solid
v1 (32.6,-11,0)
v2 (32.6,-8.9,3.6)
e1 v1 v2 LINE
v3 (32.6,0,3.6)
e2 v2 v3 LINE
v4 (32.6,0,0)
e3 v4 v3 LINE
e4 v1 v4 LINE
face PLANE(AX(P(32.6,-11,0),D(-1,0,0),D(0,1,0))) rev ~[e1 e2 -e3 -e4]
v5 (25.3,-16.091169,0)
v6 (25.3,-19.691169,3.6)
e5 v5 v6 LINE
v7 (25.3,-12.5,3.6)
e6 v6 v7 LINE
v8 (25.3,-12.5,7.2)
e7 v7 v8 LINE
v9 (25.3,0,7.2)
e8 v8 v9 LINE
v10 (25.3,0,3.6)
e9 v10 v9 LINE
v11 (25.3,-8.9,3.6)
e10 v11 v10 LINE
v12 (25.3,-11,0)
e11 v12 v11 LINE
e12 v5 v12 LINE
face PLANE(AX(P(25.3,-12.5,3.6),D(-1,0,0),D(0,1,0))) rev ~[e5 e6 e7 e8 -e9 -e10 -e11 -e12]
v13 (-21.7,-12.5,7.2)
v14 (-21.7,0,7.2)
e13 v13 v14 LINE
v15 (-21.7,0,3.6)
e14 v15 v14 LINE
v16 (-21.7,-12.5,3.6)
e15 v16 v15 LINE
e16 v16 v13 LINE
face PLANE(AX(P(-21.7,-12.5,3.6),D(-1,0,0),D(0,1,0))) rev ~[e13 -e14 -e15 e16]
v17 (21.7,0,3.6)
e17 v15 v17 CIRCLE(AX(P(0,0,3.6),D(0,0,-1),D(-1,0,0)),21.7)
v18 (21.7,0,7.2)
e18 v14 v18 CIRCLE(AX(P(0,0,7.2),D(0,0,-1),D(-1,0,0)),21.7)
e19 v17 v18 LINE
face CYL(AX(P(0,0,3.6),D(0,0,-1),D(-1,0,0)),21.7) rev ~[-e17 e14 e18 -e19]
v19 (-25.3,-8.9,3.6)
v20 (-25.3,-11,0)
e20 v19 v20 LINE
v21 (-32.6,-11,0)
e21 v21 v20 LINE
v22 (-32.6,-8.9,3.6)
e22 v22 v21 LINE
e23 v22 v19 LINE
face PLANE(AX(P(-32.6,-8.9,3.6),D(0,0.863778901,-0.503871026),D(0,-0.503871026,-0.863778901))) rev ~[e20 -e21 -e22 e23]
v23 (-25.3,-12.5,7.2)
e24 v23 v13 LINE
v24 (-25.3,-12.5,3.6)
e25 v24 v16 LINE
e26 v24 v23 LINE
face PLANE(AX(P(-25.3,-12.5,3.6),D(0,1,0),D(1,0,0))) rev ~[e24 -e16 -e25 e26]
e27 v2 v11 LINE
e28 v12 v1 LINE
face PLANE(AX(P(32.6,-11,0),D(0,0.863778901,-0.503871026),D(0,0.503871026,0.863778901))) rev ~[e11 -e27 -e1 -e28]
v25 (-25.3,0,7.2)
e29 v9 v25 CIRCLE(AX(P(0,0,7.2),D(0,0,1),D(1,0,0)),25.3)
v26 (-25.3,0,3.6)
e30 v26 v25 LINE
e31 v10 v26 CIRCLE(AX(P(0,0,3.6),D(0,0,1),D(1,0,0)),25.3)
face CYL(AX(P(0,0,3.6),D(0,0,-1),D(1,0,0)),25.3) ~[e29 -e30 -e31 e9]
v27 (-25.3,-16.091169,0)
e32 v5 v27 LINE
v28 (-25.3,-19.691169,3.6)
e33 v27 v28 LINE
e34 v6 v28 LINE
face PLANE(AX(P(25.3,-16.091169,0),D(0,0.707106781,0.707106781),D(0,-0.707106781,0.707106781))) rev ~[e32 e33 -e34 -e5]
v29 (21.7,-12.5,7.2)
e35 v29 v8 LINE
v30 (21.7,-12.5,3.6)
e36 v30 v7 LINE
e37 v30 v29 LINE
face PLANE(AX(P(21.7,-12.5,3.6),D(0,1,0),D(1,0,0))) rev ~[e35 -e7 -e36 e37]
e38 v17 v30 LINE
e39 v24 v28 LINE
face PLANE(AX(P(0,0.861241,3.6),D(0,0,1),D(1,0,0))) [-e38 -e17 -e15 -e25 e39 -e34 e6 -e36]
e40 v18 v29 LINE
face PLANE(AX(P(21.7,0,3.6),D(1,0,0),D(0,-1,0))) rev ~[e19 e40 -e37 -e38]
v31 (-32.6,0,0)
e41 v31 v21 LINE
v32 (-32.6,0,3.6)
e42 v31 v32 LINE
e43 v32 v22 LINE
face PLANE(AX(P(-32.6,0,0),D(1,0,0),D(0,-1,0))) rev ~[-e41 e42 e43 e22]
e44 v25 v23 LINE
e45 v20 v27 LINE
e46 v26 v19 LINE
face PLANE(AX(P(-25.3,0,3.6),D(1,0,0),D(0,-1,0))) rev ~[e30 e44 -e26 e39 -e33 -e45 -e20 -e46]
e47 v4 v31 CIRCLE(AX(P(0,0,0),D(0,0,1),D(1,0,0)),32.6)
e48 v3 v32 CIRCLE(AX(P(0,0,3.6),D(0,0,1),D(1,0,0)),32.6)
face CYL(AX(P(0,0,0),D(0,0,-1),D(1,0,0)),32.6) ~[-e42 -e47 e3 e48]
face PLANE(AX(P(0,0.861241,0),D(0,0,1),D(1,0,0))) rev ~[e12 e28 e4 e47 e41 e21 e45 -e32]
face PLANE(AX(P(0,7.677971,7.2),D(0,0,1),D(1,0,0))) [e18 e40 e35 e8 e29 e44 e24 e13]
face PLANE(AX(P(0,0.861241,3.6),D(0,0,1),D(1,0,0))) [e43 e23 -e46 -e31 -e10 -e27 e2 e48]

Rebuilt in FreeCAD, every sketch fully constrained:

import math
import FreeCAD as App
import Part
import Sketcher
Q = App.Units.Quantity

doc = App.newDocument("Part")
params = doc.addObject("Spreadsheet::Sheet", "Params")
for row, (alias, value) in enumerate([
    ("sketch1_radius", "32.6 mm"),
    ("sketch1_height", "11 mm"),
    ("sketch1_height2", "10 mm"),
    ("sketch1_width", "7.3 mm"),
    ("pad1_length", "3.6 mm"),
    ("sketch2_width", "2.1 mm"),
    ("sketch2_height", "3.6 mm"),
    ("pocket1_length", "7.3 mm"),
    ("sketch3_width", "2.1 mm"),
    ("sketch3_height", "3.6 mm"),
    ("pocket2_length", "7.3 mm"),
    ("sketch4_radius", "21.7 mm"),
    ("sketch4_radius2", "25.3 mm"),
    ("sketch4_height", "12.5 mm"),
    ("pad2_length", "3.6 mm"),
    ("sketch5_height", "3.6 mm"),
], start=1):
    params.set(f"A{row}", alias)
    params.set(f"B{row}", "=" + value)
    params.setAlias(f"B{row}", alias)

body = doc.addObject("PartDesign::Body", "Body")

# Sketch on XY plane
sketch1 = body.newObject("Sketcher::SketchObject", "Sketch")
sketch1.AttachmentSupport = (doc.getObject("XY_Plane"), [""])
sketch1.MapMode = "FlatFace"
sketch1.addGeometry([
    Part.LineSegment(App.Vector(-33, 0, 0), App.Vector(-33, -11, 0)),  # 0
    Part.LineSegment(App.Vector(-33, -11, 0), App.Vector(-25, -11, 0)),  # 1
    Part.LineSegment(App.Vector(-25, -11, 0), App.Vector(-25, -21, 0)),  # 2
    Part.LineSegment(App.Vector(-25, -21, 0), App.Vector(25, -21, 0)),  # 3
    Part.LineSegment(App.Vector(25, -21, 0), App.Vector(25, -11, 0)),  # 4
    Part.LineSegment(App.Vector(25, -11, 0), App.Vector(33, -11, 0)),  # 5
    Part.LineSegment(App.Vector(33, -11, 0), App.Vector(33, 0, 0)),  # 6
    Part.ArcOfCircle(Part.Circle(App.Vector(0, 0, 0), App.Vector(0, 0, 1), 33), math.radians(0), math.radians(180)),  # 7
], False)
sketch1.addConstraint([
    Sketcher.Constraint("Coincident", 0, 2, 1, 1),
    Sketcher.Constraint("Coincident", 1, 2, 2, 1),
    Sketcher.Constraint("Coincident", 2, 2, 3, 1),
    Sketcher.Constraint("Coincident", 3, 2, 4, 1),
    Sketcher.Constraint("Coincident", 4, 2, 5, 1),
    Sketcher.Constraint("Coincident", 5, 2, 6, 1),
    Sketcher.Constraint("Tangent", 6, 2, 7, 1),
    Sketcher.Constraint("Tangent", 7, 2, 0, 1),
    Sketcher.Constraint("Vertical", 0),
    Sketcher.Constraint("Horizontal", 1),
    Sketcher.Constraint("Vertical", 2),
    Sketcher.Constraint("Horizontal", 3),
    Sketcher.Constraint("Vertical", 4),
    Sketcher.Constraint("Horizontal", 5),
    Sketcher.Constraint("Vertical", 6),
    Sketcher.Constraint("Coincident", 7, 3, -1, 1),
    Sketcher.Constraint("Symmetric", 1, 2, 4, 2, -2),
    Sketcher.Constraint("Radius", 7, 32.6),
    Sketcher.Constraint("DistanceY", 0, 2, 0, 1, 11.0),
    Sketcher.Constraint("DistanceY", 2, 2, 2, 1, 10.0),
    Sketcher.Constraint("DistanceX", 1, 1, 1, 2, 7.3),
])
sketch1.setExpression("Constraints[17]", "Params.sketch1_radius")
sketch1.setExpression("Constraints[18]", "Params.sketch1_height")
sketch1.setExpression("Constraints[19]", "Params.sketch1_height2")
sketch1.setExpression("Constraints[20]", "Params.sketch1_width")
pad1 = body.newObject("PartDesign::Pad", "Pad")
pad1.Profile = sketch1
pad1.setExpression("Length", "Params.pad1_length")

# Sketch on YZ plane
sketch2 = body.newObject("Sketcher::SketchObject", "Sketch001")
sketch2.AttachmentSupport = (doc.getObject("YZ_Plane"), [""])
sketch2.MapMode = "FlatFace"
sketch2.AttachmentOffset = App.Placement(App.Vector(0, 0, 32.6), App.Rotation())
sketch2.addGeometry([
    Part.LineSegment(App.Vector(-8.9, 3.6, 0), App.Vector(-11, 3.6, 0)),
    Part.LineSegment(App.Vector(-11, 3.6, 0), App.Vector(-11, 0, 0)),
    Part.LineSegment(App.Vector(-11, 0, 0), App.Vector(-8.9, 3.6, 0)),
], False)
sketch2.addConstraint([
    Sketcher.Constraint("Coincident", 0, 2, 1, 1),
    Sketcher.Constraint("Coincident", 1, 2, 2, 1),
    Sketcher.Constraint("Coincident", 2, 2, 0, 1),
    Sketcher.Constraint("Horizontal", 0),
    Sketcher.Constraint("Vertical", 1),
    Sketcher.Constraint("PointOnObject", 1, 2, -1),
    Sketcher.Constraint("DistanceX", 0, 2, 0, 1, 2.1),
    Sketcher.Constraint("DistanceY", 1, 2, 1, 1, 3.6),
    Sketcher.Constraint("DistanceX", 0, 2, -1, 1, 11.0),
])
sketch2.setExpression("Constraints[6]", "Params.sketch2_width")
sketch2.setExpression("Constraints[7]", "Params.sketch2_height")
pocket1 = body.newObject("PartDesign::Pocket", "Pocket")
pocket1.Profile = sketch2
pocket1.setExpression("Length", "Params.pocket1_length")

# Sketch on YZ plane
sketch3 = body.newObject("Sketcher::SketchObject", "Sketch002")
sketch3.AttachmentSupport = (doc.getObject("YZ_Plane"), [""])
sketch3.MapMode = "FlatFace"
sketch3.AttachmentOffset = App.Placement(App.Vector(0, 0, -32.6), App.Rotation())
sketch3.addGeometry([
    Part.LineSegment(App.Vector(-11, 0, 0), App.Vector(-11, 3.6, 0)),
    Part.LineSegment(App.Vector(-11, 3.6, 0), App.Vector(-8.9, 3.6, 0)),
    Part.LineSegment(App.Vector(-8.9, 3.6, 0), App.Vector(-11, 0, 0)),
], False)
sketch3.addConstraint([
    Sketcher.Constraint("Coincident", 0, 2, 1, 1),
    Sketcher.Constraint("Coincident", 1, 2, 2, 1),
    Sketcher.Constraint("Coincident", 2, 2, 0, 1),
    Sketcher.Constraint("Vertical", 0),
    Sketcher.Constraint("Horizontal", 1),
    Sketcher.Constraint("PointOnObject", 2, 2, -1),
    Sketcher.Constraint("DistanceX", 1, 1, 1, 2, 2.1),
    Sketcher.Constraint("DistanceY", 0, 1, 0, 2, 3.6),
    Sketcher.Constraint("DistanceX", 0, 2, -1, 1, 11.0),
])
sketch3.setExpression("Constraints[6]", "Params.sketch3_width")
sketch3.setExpression("Constraints[7]", "Params.sketch3_height")
pocket2 = body.newObject("PartDesign::Pocket", "Pocket001")
pocket2.Profile = sketch3
pocket2.setExpression("Length", "Params.pocket2_length")
pocket2.Reversed = True

# Sketch on XY plane
sketch4 = body.newObject("Sketcher::SketchObject", "Sketch003")
sketch4.AttachmentSupport = (doc.getObject("XY_Plane"), [""])
sketch4.MapMode = "FlatFace"
sketch4.AttachmentOffset = App.Placement(App.Vector(0, 0, 3.6), App.Rotation())
sketch4.addGeometry([
    Part.LineSegment(App.Vector(-25.3, 0, 0), App.Vector(-25.3, -12.5, 0)),  # 0
    Part.LineSegment(App.Vector(-25.3, -12.5, 0), App.Vector(-21.7, -12.5, 0)),  # 1
    Part.LineSegment(App.Vector(-21.7, -12.5, 0), App.Vector(-21.7, 0, 0)),  # 2
    Part.ArcOfCircle(Part.Circle(App.Vector(0, 0, 0), App.Vector(0, 0, 1), 21.7), math.radians(0), math.radians(180)),  # 3
    Part.LineSegment(App.Vector(21.7, 0, 0), App.Vector(21.7, -12.5, 0)),  # 4
    Part.LineSegment(App.Vector(21.7, -12.5, 0), App.Vector(25.3, -12.5, 0)),  # 5
    Part.LineSegment(App.Vector(25.3, -12.5, 0), App.Vector(25.3, 0, 0)),  # 6
    Part.ArcOfCircle(Part.Circle(App.Vector(0, 0, 0), App.Vector(0, 0, 1), 25.3), math.radians(0), math.radians(180)),  # 7
], False)
sketch4.addConstraint([
    Sketcher.Constraint("Coincident", 0, 2, 1, 1),
    Sketcher.Constraint("Coincident", 1, 2, 2, 1),
    Sketcher.Constraint("Tangent", 2, 2, 3, 2),
    Sketcher.Constraint("Tangent", 3, 1, 4, 1),
    Sketcher.Constraint("Coincident", 4, 2, 5, 1),
    Sketcher.Constraint("Coincident", 5, 2, 6, 1),
    Sketcher.Constraint("Tangent", 6, 2, 7, 1),
    Sketcher.Constraint("Tangent", 7, 2, 0, 1),
    Sketcher.Constraint("Vertical", 0),
    Sketcher.Constraint("Horizontal", 1),
    Sketcher.Constraint("Vertical", 2),
    Sketcher.Constraint("Vertical", 4),
    Sketcher.Constraint("Horizontal", 5),
    Sketcher.Constraint("Vertical", 6),
    Sketcher.Constraint("Coincident", 3, 3, -1, 1),
    Sketcher.Constraint("Coincident", 7, 3, -1, 1),
    Sketcher.Constraint("Horizontal", 1, 2, 4, 2),
    Sketcher.Constraint("Radius", 3, 21.7),
    Sketcher.Constraint("Radius", 7, 25.3),
    Sketcher.Constraint("DistanceY", 0, 2, 0, 1, 12.5),
])
sketch4.setExpression("Constraints[17]", "Params.sketch4_radius")
sketch4.setExpression("Constraints[18]", "Params.sketch4_radius2")
sketch4.setExpression("Constraints[19]", "Params.sketch4_height")
pad2 = body.newObject("PartDesign::Pad", "Pad001")
pad2.Profile = sketch4
pad2.setExpression("Length", "Params.pad2_length")

# Sketch on YZ plane
sketch5 = body.newObject("Sketcher::SketchObject", "Sketch004")
sketch5.AttachmentSupport = (doc.getObject("YZ_Plane"), [""])
sketch5.MapMode = "FlatFace"
sketch5.AttachmentOffset = App.Placement(App.Vector(0, 0, 25.3), App.Rotation())
sketch5.addGeometry([
    Part.LineSegment(App.Vector(-19.7, 3.6, 0), App.Vector(-21, 3.6, 0)),
    Part.LineSegment(App.Vector(-21, 3.6, 0), App.Vector(-21, 0, 0)),
    Part.LineSegment(App.Vector(-21, 0, 0), App.Vector(-16.1, 0, 0)),
    Part.LineSegment(App.Vector(-16.1, 0, 0), App.Vector(-19.7, 3.6, 0)),
], False)
sketch5.addConstraint([
    Sketcher.Constraint("Coincident", 0, 2, 1, 1),
    Sketcher.Constraint("Coincident", 1, 2, 2, 1),
    Sketcher.Constraint("Coincident", 2, 2, 3, 1),
    Sketcher.Constraint("Coincident", 3, 2, 0, 1),
    Sketcher.Constraint("Horizontal", 0),
    Sketcher.Constraint("Vertical", 1),
    Sketcher.Constraint("Horizontal", 2),
    Sketcher.Constraint("PointOnObject", 1, 2, -1),
    Sketcher.Constraint("Angle", 3, Q("135 deg")),
    Sketcher.Constraint("DistanceY", 1, 2, 1, 1, 3.6),
    Sketcher.Constraint("DistanceX", 0, 2, -1, 1, 21.0),
    Sketcher.Constraint("DistanceX", 0, 2, 0, 1, 1.308831),
])
sketch5.setExpression("Constraints[9]", "Params.sketch5_height")
pocket3 = body.newObject("PartDesign::Pocket", "Pocket002")
pocket3.Profile = sketch5
pocket3.Type = "ThroughAll"

doc.recompute()
